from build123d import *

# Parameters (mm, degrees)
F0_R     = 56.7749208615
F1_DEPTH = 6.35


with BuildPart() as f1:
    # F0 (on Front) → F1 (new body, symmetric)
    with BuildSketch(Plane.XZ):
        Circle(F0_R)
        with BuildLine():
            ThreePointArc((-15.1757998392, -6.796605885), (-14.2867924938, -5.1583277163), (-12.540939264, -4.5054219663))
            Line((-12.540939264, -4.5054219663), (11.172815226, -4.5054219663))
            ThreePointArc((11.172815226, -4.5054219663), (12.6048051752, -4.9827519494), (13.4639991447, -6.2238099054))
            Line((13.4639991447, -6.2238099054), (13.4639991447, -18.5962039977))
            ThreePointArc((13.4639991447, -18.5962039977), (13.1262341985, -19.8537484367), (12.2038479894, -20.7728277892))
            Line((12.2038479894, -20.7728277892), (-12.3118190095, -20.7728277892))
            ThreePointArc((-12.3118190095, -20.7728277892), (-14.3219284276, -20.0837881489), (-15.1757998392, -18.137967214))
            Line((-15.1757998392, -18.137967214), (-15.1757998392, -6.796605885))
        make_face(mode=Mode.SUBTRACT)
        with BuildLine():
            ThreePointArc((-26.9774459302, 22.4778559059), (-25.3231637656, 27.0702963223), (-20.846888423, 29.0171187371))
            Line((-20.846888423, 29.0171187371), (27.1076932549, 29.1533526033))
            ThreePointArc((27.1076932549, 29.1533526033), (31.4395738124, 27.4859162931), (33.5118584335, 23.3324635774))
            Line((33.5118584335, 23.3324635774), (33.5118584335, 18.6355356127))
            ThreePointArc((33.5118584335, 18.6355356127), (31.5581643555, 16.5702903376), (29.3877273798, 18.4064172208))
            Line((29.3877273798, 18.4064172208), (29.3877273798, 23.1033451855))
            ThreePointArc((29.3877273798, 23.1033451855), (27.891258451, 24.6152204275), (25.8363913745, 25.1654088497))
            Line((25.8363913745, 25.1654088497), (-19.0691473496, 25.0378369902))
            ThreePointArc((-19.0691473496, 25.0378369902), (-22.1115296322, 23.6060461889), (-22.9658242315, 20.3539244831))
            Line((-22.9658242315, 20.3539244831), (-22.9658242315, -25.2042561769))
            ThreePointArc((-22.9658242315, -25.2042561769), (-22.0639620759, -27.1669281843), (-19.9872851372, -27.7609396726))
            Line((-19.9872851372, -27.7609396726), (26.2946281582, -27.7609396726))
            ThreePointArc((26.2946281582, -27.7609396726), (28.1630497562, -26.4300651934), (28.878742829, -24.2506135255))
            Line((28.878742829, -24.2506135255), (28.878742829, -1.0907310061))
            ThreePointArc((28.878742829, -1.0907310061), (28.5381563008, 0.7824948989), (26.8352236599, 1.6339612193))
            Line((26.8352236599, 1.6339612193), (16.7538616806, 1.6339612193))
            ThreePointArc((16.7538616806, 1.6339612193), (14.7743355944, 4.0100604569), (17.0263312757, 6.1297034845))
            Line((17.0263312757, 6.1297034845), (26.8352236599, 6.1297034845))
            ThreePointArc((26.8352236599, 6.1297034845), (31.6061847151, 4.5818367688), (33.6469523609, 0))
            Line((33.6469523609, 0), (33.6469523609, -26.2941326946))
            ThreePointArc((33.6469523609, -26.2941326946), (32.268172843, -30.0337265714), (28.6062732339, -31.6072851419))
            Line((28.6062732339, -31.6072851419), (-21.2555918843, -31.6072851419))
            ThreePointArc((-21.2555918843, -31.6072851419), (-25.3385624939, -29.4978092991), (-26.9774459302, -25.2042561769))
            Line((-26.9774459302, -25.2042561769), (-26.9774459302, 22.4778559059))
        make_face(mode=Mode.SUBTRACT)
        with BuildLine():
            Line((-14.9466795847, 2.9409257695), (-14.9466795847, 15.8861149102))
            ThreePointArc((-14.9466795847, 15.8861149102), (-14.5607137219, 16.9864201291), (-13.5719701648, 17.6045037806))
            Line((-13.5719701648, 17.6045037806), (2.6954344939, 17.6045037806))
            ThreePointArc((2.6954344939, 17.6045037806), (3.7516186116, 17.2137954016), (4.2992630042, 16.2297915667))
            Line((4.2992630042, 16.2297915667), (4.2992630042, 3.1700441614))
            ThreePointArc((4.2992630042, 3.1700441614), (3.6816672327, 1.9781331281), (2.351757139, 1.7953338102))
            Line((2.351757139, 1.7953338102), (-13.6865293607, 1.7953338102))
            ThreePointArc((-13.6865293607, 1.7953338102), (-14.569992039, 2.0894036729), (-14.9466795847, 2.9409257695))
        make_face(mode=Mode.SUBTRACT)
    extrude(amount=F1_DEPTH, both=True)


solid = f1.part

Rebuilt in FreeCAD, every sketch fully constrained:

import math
import FreeCAD as App
import Part
import Sketcher

V = App.Vector
Q = App.Units.Quantity

doc = App.newDocument("Part")
body = doc.addObject("PartDesign::Body", "Body")

# Sketch on XZ plane
sketch1 = body.newObject("Sketcher::SketchObject", "Sketch")
sketch1.AttachmentSupport = (doc.getObject("XZ_Plane"), [""])
sketch1.MapMode = "FlatFace"
sketch1.addGeometry([
    Part.Circle(V(0, 0, 0), V(0, 0, 1), 56.774921),  # 0
    Part.LineSegment(V(-15.1758, -18.137967, 0), V(-15.1758, -6.796606, 0)),  # 1
    Part.ArcOfCircle(Part.Circle(V(-12.540939, -7.166058, 0), V(0, 0, 1), 2.660636), math.radians(90), math.radians(172.018194)),  # 2
    Part.LineSegment(V(-12.540939, -4.505422, 0), V(11.172815, -4.505422, 0)),  # 3
    Part.ArcOfCircle(Part.Circle(V(11.172815, -6.892072, 0), V(0, 0, 1), 2.38665), math.radians(16.260205), math.radians(90)),  # 4
    Part.LineSegment(V(13.463999, -6.22381, 0), V(13.463999, -18.596204, 0)),  # 5
    Part.ArcOfCircle(Part.Circle(V(10.954113, -18.596204, 0), V(0, 0, 1), 2.509886), math.radians(-60.137187), math.radians(0)),  # 6
    Part.LineSegment(V(12.203848, -20.772828, 0), V(-12.311819, -20.772828, 0)),  # 7
    Part.ArcOfCircle(Part.Circle(V(-12.531774, -18.137967, 0), V(0, 0, 1), 2.644025), math.radians(180), math.radians(274.771927)),  # 8
    Part.ArcOfCircle(Part.Circle(V(-13.79588, 2.940926, 0), V(0, 0, 1), 1.150799), math.radians(180), math.radians(275.45258)),  # 9
    Part.LineSegment(V(-14.94668, 2.940926, 0), V(-14.94668, 15.886115, 0)),  # 10
    Part.ArcOfCircle(Part.Circle(V(-13.185331, 15.886115, 0), V(0, 0, 1), 1.761349), math.radians(102.680452), math.radians(180)),  # 11
    Part.LineSegment(V(-13.57197, 17.604504, 0), V(2.695434, 17.604504, 0)),  # 12
    Part.ArcOfCircle(Part.Circle(V(2.695434, 15.981582, 0), V(0, 0, 1), 1.622921), math.radians(8.797326), math.radians(90)),  # 13
    Part.LineSegment(V(4.299263, 16.229792, 0), V(4.299263, 3.170044, 0)),  # 14
    Part.ArcOfCircle(Part.Circle(V(2.840318, 3.170044, 0), V(0, 0, 1), 1.458945), math.radians(-109.564801), math.radians(0)),  # 15
    Part.LineSegment(V(2.351757, 1.795334, 0), V(-13.686529, 1.795334, 0)),  # 16
    Part.LineSegment(V(-26.977446, -25.204256, 0), V(-26.977446, 22.477856, 0)),  # 17
    Part.ArcOfCircle(Part.Circle(V(-20.829389, 22.857384, 0), V(0, 0, 1), 6.15976), math.radians(90.162771), math.radians(183.532463)),  # 18
    Part.LineSegment(V(-20.846888, 29.017119, 0), V(27.107693, 29.153353, 0)),  # 19
    Part.ArcOfCircle(Part.Circle(V(27.125913, 22.740009, 0), V(0, 0, 1), 6.413369), math.radians(5.300426), math.radians(90.162771)),  # 20
    Part.LineSegment(V(33.511858, 23.332464, 0), V(33.511858, 18.635536, 0)),  # 21
    Part.ArcOfCircle(Part.Circle(V(31.443429, 18.635536, 0), V(0, 0, 1), 2.06843), math.radians(-173.64034), math.radians(0)),  # 22
    Part.LineSegment(V(29.387727, 18.406417, 0), V(29.387727, 23.103345, 0)),  # 23
    Part.ArcOfCircle(Part.Circle(V(25.847952, 21.096188, 0), V(0, 0, 1), 4.069237), math.radians(29.554516), math.radians(90.162771)),  # 24
    Part.LineSegment(V(25.836391, 25.165409, 0), V(-19.069147, 25.037837, 0)),  # 25
    Part.ArcOfCircle(Part.Circle(V(-19.057863, 21.065616, 0), V(0, 0, 1), 3.972237), math.radians(90.162771), math.radians(190.321208)),  # 26
    Part.LineSegment(V(-22.965824, 20.353924, 0), V(-22.965824, -25.204256, 0)),  # 27
    Part.ArcOfCircle(Part.Circle(V(-20.379267, -25.204256, 0), V(0, 0, 1), 2.586558), math.radians(180), math.radians(278.71651)),  # 28
    Part.LineSegment(V(-19.987285, -27.76094, 0), V(26.294628, -27.76094, 0)),  # 29
    Part.ArcOfCircle(Part.Circle(V(25.202428, -24.250614, 0), V(0, 0, 1), 3.676315), math.radians(-72.717033), math.radians(0)),  # 30
    Part.LineSegment(V(28.878743, -24.250614, 0), V(28.878743, -1.090731, 0)),  # 31
    Part.ArcOfCircle(Part.Circle(V(26.835224, -0.494705, 0), V(0, 0, 1), 2.128666), math.radians(-16.260205), math.radians(90)),  # 32
    Part.LineSegment(V(26.835224, 1.633961, 0), V(16.753862, 1.633961, 0)),  # 33
    Part.ArcOfCircle(Part.Circle(V(17.026331, 3.873576, 0), V(0, 0, 1), 2.256128), math.radians(90), math.radians(263.063532)),  # 34
    Part.LineSegment(V(17.026331, 6.129703, 0), V(26.835224, 6.129703, 0)),  # 35
    Part.ArcOfCircle(Part.Circle(V(27.483105, 0, 0), V(0, 0, 1), 6.163847), math.radians(0), math.radians(96.033497)),  # 36
    Part.LineSegment(V(33.646952, 0, 0), V(33.646952, -26.294133, 0)),  # 37
    Part.ArcOfCircle(Part.Circle(V(28.606273, -26.559619, 0), V(0, 0, 1), 5.047666), math.radians(-90), math.radians(3.014917)),  # 38
    Part.LineSegment(V(28.606273, -31.607285, 0), V(-21.255592, -31.607285, 0)),  # 39
    Part.ArcOfCircle(Part.Circle(V(-20.533871, -25.204256, 0), V(0, 0, 1), 6.443575), math.radians(180), math.radians(263.569016)),  # 40
], False)
sketch1.addConstraint([
    Sketcher.Constraint("Coincident", 1, 2, 2, 2),
    Sketcher.Constraint("Coincident", 2, 1, 3, 1),
    Sketcher.Constraint("Coincident", 3, 2, 4, 2),
    Sketcher.Constraint("Coincident", 4, 1, 5, 1),
    Sketcher.Constraint("Coincident", 5, 2, 6, 2),
    Sketcher.Constraint("Coincident", 6, 1, 7, 1),
    Sketcher.Constraint("Coincident", 7, 2, 8, 2),
    Sketcher.Constraint("Coincident", 8, 1, 1, 1),
    Sketcher.Constraint("Coincident", 9, 1, 10, 1),
    Sketcher.Constraint("Coincident", 10, 2, 11, 2),
    Sketcher.Constraint("Coincident", 11, 1, 12, 1),
    Sketcher.Constraint("Coincident", 12, 2, 13, 2),
    Sketcher.Constraint("Coincident", 13, 1, 14, 1),
    Sketcher.Constraint("Coincident", 14, 2, 15, 2),
    Sketcher.Constraint("Coincident", 15, 1, 16, 1),
    Sketcher.Constraint("Coincident", 16, 2, 9, 2),
    Sketcher.Constraint("Coincident", 17, 2, 18, 2),
    Sketcher.Constraint("Coincident", 18, 1, 19, 1),
    Sketcher.Constraint("Coincident", 19, 2, 20, 2),
    Sketcher.Constraint("Coincident", 20, 1, 21, 1),
    Sketcher.Constraint("Coincident", 21, 2, 22, 2),
    Sketcher.Constraint("Coincident", 22, 1, 23, 1),
    Sketcher.Constraint("Coincident", 23, 2, 24, 1),
    Sketcher.Constraint("Coincident", 24, 2, 25, 1),
    Sketcher.Constraint("Coincident", 25, 2, 26, 1),
    Sketcher.Constraint("Coincident", 26, 2, 27, 1),
    Sketcher.Constraint("Coincident", 27, 2, 28, 1),
    Sketcher.Constraint("Coincident", 28, 2, 29, 1),
    Sketcher.Constraint("Coincident", 29, 2, 30, 1),
    Sketcher.Constraint("Coincident", 30, 2, 31, 1),
    Sketcher.Constraint("Coincident", 31, 2, 32, 1),
    Sketcher.Constraint("Coincident", 32, 2, 33, 1),
    Sketcher.Constraint("Coincident", 33, 2, 34, 2),
    Sketcher.Constraint("Coincident", 34, 1, 35, 1),
    Sketcher.Constraint("Coincident", 35, 2, 36, 2),
    Sketcher.Constraint("Coincident", 36, 1, 37, 1),
    Sketcher.Constraint("Coincident", 37, 2, 38, 2),
    Sketcher.Constraint("Coincident", 38, 1, 39, 1),
    Sketcher.Constraint("Coincident", 39, 2, 40, 2),
    Sketcher.Constraint("Coincident", 40, 1, 17, 1),
    Sketcher.Constraint("Vertical", 1),
    Sketcher.Constraint("Horizontal", 3),
    Sketcher.Constraint("Vertical", 5),
    Sketcher.Constraint("Horizontal", 7),
    Sketcher.Constraint("Vertical", 10),
    Sketcher.Constraint("Horizontal", 12),
    Sketcher.Constraint("Vertical", 14),
    Sketcher.Constraint("Horizontal", 16),
    Sketcher.Constraint("Vertical", 17),
    Sketcher.Constraint("Vertical", 21),
    Sketcher.Constraint("Vertical", 23),
    Sketcher.Constraint("Vertical", 27),
    Sketcher.Constraint("Horizontal", 29),
    Sketcher.Constraint("Vertical", 31),
    Sketcher.Constraint("Horizontal", 33),
    Sketcher.Constraint("Horizontal", 35),
    Sketcher.Constraint("Vertical", 37),
    Sketcher.Constraint("Horizontal", 39),
    Sketcher.Constraint("Coincident", 0, 3, -1, 1),
    Sketcher.Constraint("PointOnObject", 36, 3, -1),
    Sketcher.Constraint("PointOnObject", 36, 1, -1),
    Sketcher.Constraint("Radius", 9, Q("1.150799 mm")),
    Sketcher.Constraint("Diameter", 0, Q("113.549842 mm")),
    Sketcher.Constraint("Radius", 4, Q("2.38665 mm")),
    Sketcher.Constraint("Radius", 11, Q("1.761349 mm")),
    Sketcher.Constraint("Radius", 13, Q("1.622921 mm")),
    Sketcher.Constraint("Radius", 18, Q("6.15976 mm")),
    Sketcher.Constraint("Radius", 20, Q("6.413369 mm")),
    Sketcher.Constraint("Radius", 22, Q("2.06843 mm")),
    Sketcher.Constraint("Radius", 2, Q("2.660636 mm")),
    Sketcher.Constraint("Radius", 6, Q("2.509886 mm")),
    Sketcher.Constraint("Radius", 8, Q("2.644025 mm")),
    Sketcher.Constraint("Radius", 15, Q("1.458945 mm")),
    Sketcher.Constraint("Radius", 24, Q("4.069237 mm")),
    Sketcher.Constraint("Radius", 26, Q("3.972237 mm")),
    Sketcher.Constraint("Radius", 28, Q("2.586558 mm")),
    Sketcher.Constraint("Radius", 30, Q("3.676315 mm")),
    Sketcher.Constraint("Radius", 32, Q("2.128666 mm")),
    Sketcher.Constraint("Radius", 34, Q("2.256128 mm")),
    Sketcher.Constraint("Radius", 36, Q("6.163847 mm")),
    Sketcher.Constraint("Radius", 38, Q("5.047666 mm")),
    Sketcher.Constraint("Radius", 40, Q("6.443575 mm")),
    Sketcher.Constraint("DistanceX", 33, 2, 33, 1, Q("10.081362 mm")),
    Sketcher.Constraint("DistanceY", 1, 1, 1, 2, Q("11.341361 mm")),
    Sketcher.Constraint("DistanceY", 10, 1, 10, 2, Q("12.945189 mm")),
    Sketcher.Constraint("DistanceY", 27, 2, 27, 1, Q("45.558181 mm")),
    Sketcher.Constraint("DistanceX", 1, 2, -1, 1, Q("15.1758 mm")),
    Sketcher.Constraint("DistanceX", -1, 1, 4, 1, Q("13.463999 mm")),
    Sketcher.Constraint("Distance", 25, Q("44.90572 mm")),
    Sketcher.Constraint("DistanceX", 3, 1, 3, 2, Q("23.713754 mm")),
    Sketcher.Constraint("DistanceX", 7, 2, 7, 1, Q("24.515667 mm")),
    Sketcher.Constraint("DistanceX", 12, 1, 12, 2, Q("16.267405 mm")),
    Sketcher.Constraint("DistanceX", 16, 2, 16, 1, Q("16.038286 mm")),
    Sketcher.Constraint("DistanceX", 29, 1, 29, 2, Q("46.281913 mm")),
    Sketcher.Constraint("DistanceX", 35, 1, 35, 2, Q("9.808892 mm")),
    Sketcher.Constraint("DistanceX", 39, 2, 39, 1, Q("49.861865 mm")),
    Sketcher.Constraint("DistanceY", 5, 2, 5, 1, Q("12.372394 mm")),
    Sketcher.Constraint("DistanceY", 14, 2, 14, 1, Q("13.059747 mm")),
    Sketcher.Constraint("DistanceY", 17, 1, 17, 2, Q("47.682112 mm")),
    Sketcher.Constraint("DistanceY", 21, 2, 21, 1, Q("4.696928 mm")),
    Sketcher.Constraint("DistanceY", 23, 1, 23, 2, Q("4.696928 mm")),
    Sketcher.Constraint("DistanceY", 31, 1, 31, 2, Q("23.159883 mm")),
    Sketcher.Constraint("DistanceY", 37, 2, 37, 1, Q("26.294133 mm")),
    Sketcher.Constraint("DistanceX", 2, 3, -1, 1, Q("12.540939 mm")),
    Sketcher.Constraint("DistanceY", 2, 3, -1, 1, Q("7.166058 mm")),
    Sketcher.Constraint("DistanceX", 9, 3, -1, 1, Q("13.79588 mm")),
    Sketcher.Constraint("DistanceX", -1, 1, 15, 3, Q("2.840318 mm")),
    Sketcher.Constraint("DistanceX", 18, 3, -1, 1, Q("20.829389 mm")),
    Sketcher.Constraint("DistanceY", -1, 1, 20, 3, Q("22.740009 mm")),
    Sketcher.Constraint("DistanceX", -1, 1, 22, 3, Q("31.443429 mm")),
    Sketcher.Constraint("DistanceX", -1, 1, 24, 3, Q("25.847952 mm")),
    Sketcher.Constraint("DistanceX", -1, 1, 34, 3, Q("17.026331 mm")),
    Sketcher.Constraint("DistanceY", 38, 3, -1, 1, Q("26.559619 mm")),
    Sketcher.Constraint("DistanceX", 40, 3, -1, 1, Q("20.533871 mm")),
    Sketcher.Constraint("DistanceX", 2, 1, -1, 1, Q("12.540939 mm")),
    Sketcher.Constraint("DistanceY", 4, 1, -1, 1, Q("6.22381 mm")),
    Sketcher.Constraint("DistanceX", 7, 2, -1, 1, Q("12.311819 mm")),
    Sketcher.Constraint("DistanceX", 11, 1, -1, 1, Q("13.57197 mm")),
    Sketcher.Constraint("DistanceY", -1, 1, 13, 1, Q("16.229792 mm")),
    Sketcher.Constraint("DistanceX", 16, 2, -1, 1, Q("13.686529 mm")),
    Sketcher.Constraint("DistanceX", 18, 1, -1, 1, Q("20.846888 mm")),
    Sketcher.Constraint("DistanceY", -1, 1, 18, 1, Q("29.017119 mm")),
    Sketcher.Constraint("DistanceX", -1, 1, 24, 2, Q("25.836391 mm")),
    Sketcher.Constraint("DistanceY", -1, 1, 24, 2, Q("25.165409 mm")),
    Sketcher.Constraint("DistanceY", 28, 2, -1, 1, Q("27.76094 mm")),
    Sketcher.Constraint("DistanceX", -1, 1, 29, 2, Q("26.294628 mm")),
    Sketcher.Constraint("DistanceY", 31, 2, -1, 1, Q("1.090731 mm")),
    Sketcher.Constraint("DistanceY", -1, 1, 32, 2, Q("1.633961 mm")),
    Sketcher.Constraint("DistanceX", -1, 1, 33, 2, Q("16.753862 mm")),
    Sketcher.Constraint("DistanceX", -1, 1, 34, 1, Q("17.026331 mm")),
    Sketcher.Constraint("DistanceX", 39, 2, -1, 1, Q("21.255592 mm")),
    Sketcher.Constraint("Distance", 19, Q("47.954775 mm")),
    Sketcher.Constraint("DistanceY", 6, 3, -1, 1, Q("18.596204 mm")),
    Sketcher.Constraint("DistanceY", -1, 1, 9, 3, Q("2.940926 mm")),
    Sketcher.Constraint("DistanceY", -1, 1, 11, 3, Q("15.886115 mm")),
    Sketcher.Constraint("DistanceX", -1, 1, 20, 3, Q("27.125913 mm")),
    Sketcher.Constraint("DistanceY", -1, 1, 22, 3, Q("18.635536 mm")),
    Sketcher.Constraint("DistanceX", 26, 3, -1, 1, Q("19.057863 mm")),
    Sketcher.Constraint("DistanceY", -1, 1, 26, 3, Q("21.065616 mm")),
    Sketcher.Constraint("DistanceX", 28, 3, -1, 1, Q("20.379267 mm")),
    Sketcher.Constraint("DistanceX", -1, 1, 30, 3, Q("25.202428 mm")),
    Sketcher.Constraint("DistanceY", -1, 1, 9, 1, Q("2.940926 mm")),
])
pad1 = body.newObject("PartDesign::Pad", "Pad")
pad1.Profile = sketch1
pad1.Length = Q("0.5 in")
pad1.Midplane = True

doc.recompute()
